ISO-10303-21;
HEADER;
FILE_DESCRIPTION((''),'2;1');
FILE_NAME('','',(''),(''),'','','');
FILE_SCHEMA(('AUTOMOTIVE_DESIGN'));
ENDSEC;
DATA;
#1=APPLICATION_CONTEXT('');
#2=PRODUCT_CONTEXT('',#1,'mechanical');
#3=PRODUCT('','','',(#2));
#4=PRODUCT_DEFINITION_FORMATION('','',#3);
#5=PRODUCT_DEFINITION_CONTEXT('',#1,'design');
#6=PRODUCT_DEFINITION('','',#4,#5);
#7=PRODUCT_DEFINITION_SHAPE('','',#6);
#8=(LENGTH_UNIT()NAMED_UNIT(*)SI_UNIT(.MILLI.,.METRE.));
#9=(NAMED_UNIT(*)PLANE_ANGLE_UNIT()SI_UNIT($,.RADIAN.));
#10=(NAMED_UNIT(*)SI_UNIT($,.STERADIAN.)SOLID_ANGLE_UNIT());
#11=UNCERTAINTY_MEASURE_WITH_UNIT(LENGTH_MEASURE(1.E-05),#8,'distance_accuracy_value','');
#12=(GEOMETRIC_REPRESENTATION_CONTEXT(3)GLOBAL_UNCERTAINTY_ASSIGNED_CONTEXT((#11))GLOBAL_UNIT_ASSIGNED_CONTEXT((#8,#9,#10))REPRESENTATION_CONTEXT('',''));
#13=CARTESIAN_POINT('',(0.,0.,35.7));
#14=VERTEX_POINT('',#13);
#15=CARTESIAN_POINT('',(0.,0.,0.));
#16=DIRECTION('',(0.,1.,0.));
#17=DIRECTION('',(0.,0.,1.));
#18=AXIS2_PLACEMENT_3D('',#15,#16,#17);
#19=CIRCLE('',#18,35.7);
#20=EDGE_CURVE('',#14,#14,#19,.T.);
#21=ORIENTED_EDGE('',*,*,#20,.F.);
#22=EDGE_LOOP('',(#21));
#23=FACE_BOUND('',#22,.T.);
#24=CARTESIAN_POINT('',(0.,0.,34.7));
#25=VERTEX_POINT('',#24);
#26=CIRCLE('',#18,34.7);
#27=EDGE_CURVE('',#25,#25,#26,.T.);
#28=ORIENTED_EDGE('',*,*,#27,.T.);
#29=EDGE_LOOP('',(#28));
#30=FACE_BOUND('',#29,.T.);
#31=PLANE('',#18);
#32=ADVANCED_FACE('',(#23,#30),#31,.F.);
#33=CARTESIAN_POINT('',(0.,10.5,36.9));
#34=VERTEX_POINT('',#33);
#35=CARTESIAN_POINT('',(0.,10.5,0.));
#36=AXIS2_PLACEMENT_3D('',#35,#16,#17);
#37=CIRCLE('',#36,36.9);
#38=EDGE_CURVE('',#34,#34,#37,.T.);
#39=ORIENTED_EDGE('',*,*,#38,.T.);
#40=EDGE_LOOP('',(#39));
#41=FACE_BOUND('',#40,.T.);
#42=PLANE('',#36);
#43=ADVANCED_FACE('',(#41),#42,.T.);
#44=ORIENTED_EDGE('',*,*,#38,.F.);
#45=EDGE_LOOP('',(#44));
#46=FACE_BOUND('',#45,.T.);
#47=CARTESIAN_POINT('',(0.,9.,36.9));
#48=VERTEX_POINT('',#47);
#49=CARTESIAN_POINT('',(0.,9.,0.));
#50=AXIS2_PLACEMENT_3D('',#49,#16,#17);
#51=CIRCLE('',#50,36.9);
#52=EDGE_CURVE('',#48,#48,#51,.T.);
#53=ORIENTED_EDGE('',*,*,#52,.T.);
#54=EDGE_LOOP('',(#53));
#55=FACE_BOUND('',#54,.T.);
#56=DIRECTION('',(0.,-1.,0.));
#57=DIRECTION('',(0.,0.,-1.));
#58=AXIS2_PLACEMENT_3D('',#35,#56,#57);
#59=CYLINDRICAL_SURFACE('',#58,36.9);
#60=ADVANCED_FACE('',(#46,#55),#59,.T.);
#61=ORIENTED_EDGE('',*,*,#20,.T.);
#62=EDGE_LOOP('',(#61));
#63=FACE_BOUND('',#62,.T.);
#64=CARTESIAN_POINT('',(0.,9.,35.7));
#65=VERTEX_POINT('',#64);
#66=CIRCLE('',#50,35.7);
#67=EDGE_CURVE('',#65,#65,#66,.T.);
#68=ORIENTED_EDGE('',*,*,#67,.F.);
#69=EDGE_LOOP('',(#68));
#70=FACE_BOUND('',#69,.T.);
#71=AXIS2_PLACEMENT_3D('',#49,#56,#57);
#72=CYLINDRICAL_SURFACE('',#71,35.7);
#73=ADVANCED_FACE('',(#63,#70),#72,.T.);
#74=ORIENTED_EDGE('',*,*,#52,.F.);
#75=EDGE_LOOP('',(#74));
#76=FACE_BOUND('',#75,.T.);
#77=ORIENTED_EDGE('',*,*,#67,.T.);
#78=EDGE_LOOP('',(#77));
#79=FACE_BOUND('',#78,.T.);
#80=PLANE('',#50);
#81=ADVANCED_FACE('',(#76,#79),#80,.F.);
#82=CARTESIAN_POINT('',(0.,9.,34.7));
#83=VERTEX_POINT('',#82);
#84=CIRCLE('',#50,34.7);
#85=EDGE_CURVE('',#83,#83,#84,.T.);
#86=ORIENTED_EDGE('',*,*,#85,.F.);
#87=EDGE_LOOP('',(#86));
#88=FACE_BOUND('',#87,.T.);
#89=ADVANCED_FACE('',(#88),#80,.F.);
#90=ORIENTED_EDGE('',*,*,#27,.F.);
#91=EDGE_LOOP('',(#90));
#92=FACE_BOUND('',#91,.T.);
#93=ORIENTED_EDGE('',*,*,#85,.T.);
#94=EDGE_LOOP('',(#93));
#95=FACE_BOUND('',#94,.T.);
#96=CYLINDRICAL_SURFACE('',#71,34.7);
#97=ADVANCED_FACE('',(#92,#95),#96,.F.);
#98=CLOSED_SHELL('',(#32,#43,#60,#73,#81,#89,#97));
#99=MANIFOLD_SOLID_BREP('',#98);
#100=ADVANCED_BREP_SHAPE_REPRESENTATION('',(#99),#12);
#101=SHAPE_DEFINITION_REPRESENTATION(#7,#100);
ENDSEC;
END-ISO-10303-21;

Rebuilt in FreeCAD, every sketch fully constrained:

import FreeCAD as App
import Part
import Sketcher

V = App.Vector
Q = App.Units.Quantity

doc = App.newDocument("Part")
params = doc.addObject("Spreadsheet::Sheet", "Params")
for row, (alias, value) in enumerate([
    ("sketch1_diameter", "71.4 mm"),
    ("sketch1_diameter2", "69.4 mm"),
    ("pad1_length", "9 mm"),
    ("sketch2_diameter", "73.8 mm"),
    ("pad2_length", "1.5 mm"),
], start=1):
    params.set(f"A{row}", alias)
    params.set(f"B{row}", "=" + value)
    params.setAlias(f"B{row}", alias)

body = doc.addObject("PartDesign::Body", "Body")

# Sketch on XZ plane
sketch1 = body.newObject("Sketcher::SketchObject", "Sketch")
sketch1.AttachmentSupport = (doc.getObject("XZ_Plane"), [""])
sketch1.MapMode = "FlatFace"
sketch1.addGeometry(Part.Circle(V(0, 0, 0), V(0, 0, 1), 35.7), False)
sketch1.addGeometry(Part.Circle(V(0, 0, 0), V(0, 0, 1), 34.7), False)
sketch1.addConstraint(Sketcher.Constraint("Coincident", 0, 3, -1, 1))
sketch1.addConstraint(Sketcher.Constraint("Coincident", 1, 3, -1, 1))
sketch1.addConstraint(Sketcher.Constraint("Diameter", 0, Q("71.4 mm")))
sketch1.addConstraint(Sketcher.Constraint("Diameter", 1, Q("69.4 mm")))
sketch1.setExpression("Constraints[2]", "Params.sketch1_diameter")
sketch1.setExpression("Constraints[3]", "Params.sketch1_diameter2")
pad1 = body.newObject("PartDesign::Pad", "Pad")
pad1.Profile = sketch1
pad1.setExpression("Length", "Params.pad1_length")
pad1.Reversed = True

# Sketch on XZ plane
sketch2 = body.newObject("Sketcher::SketchObject", "Sketch001")
sketch2.AttachmentSupport = (doc.getObject("XZ_Plane"), [""])
sketch2.MapMode = "FlatFace"
sketch2.AttachmentOffset = App.Placement(V(0, 0, -9), App.Rotation())
sketch2.addGeometry(Part.Circle(V(0, 0, 0), V(0, 0, 1), 36.9), False)
sketch2.addConstraint(Sketcher.Constraint("Coincident", 0, 3, -1, 1))
sketch2.addConstraint(Sketcher.Constraint("Diameter", 0, Q("73.8 mm")))
sketch2.setExpression("Constraints[1]", "Params.sketch2_diameter")
pad2 = body.newObject("PartDesign::Pad", "Pad001")
pad2.Profile = sketch2
pad2.setExpression("Length", "Params.pad2_length")
pad2.Reversed = True

doc.recompute()
